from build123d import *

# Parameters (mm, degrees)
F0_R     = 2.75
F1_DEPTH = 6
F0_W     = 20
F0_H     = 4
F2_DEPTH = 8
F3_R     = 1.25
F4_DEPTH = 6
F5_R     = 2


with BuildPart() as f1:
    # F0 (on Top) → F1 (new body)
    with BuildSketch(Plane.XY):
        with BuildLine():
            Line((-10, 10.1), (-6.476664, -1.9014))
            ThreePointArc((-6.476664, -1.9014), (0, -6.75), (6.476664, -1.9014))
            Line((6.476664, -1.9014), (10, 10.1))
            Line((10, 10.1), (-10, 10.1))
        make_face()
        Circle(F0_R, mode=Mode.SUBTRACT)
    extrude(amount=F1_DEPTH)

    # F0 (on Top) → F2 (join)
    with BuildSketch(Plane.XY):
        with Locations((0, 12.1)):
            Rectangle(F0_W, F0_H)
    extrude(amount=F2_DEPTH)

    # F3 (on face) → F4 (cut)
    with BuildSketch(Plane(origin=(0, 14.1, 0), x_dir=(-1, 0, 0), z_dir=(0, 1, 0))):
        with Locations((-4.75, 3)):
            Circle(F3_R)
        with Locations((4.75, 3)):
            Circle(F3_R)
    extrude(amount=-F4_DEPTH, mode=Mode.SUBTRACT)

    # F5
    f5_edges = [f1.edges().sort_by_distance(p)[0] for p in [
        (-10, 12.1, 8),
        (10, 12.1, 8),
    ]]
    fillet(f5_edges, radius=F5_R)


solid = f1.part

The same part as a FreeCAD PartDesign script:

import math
import FreeCAD as App
import Part
import Sketcher


def edges_at(feature, points):
    """Names of the edges that pass closest to the given points."""
    edges = feature.Shape.Edges
    near = lambda p: min(range(len(edges)), key=lambda i: edges[i].distToShape(Part.Vertex(*p))[0])
    return sorted({f"Edge{near(p) + 1}" for p in points})


def add_polygon(sketch, points):
    """Adds a closed chain of lines whose ends are joined by coincident constraints."""
    first, n = sketch.GeometryCount, len(points)
    for a, b in zip(points, points[1:] + points[:1]):
        sketch.addGeometry(Part.LineSegment(App.Vector(*a, 0), App.Vector(*b, 0)), False)
    for i in range(n):
        sketch.addConstraint(Sketcher.Constraint("Coincident", first + i, 2, first + (i + 1) % n, 1))

doc = App.newDocument("Part")
params = doc.addObject("Spreadsheet::Sheet", "Params")
for row, (alias, value) in enumerate([
    ("sketch1_diameter", "5.5 mm"),
    ("sketch1_width", "20 mm"),
    ("sketch1_radius", "6.75 mm"),
    ("pad1_length", "6 mm"),
    ("sketch2_width", "20 mm"),
    ("sketch2_height", "4 mm"),
    ("pad2_length", "8 mm"),
    ("sketch3_diameter", "2.5 mm"),
    ("pocket1_length", "6 mm"),
    ("fillet_radius", "2 mm"),
], start=1):
    params.set(f"A{row}", alias)
    params.set(f"B{row}", "=" + value)
    params.setAlias(f"B{row}", alias)

body = doc.addObject("PartDesign::Body", "Body")

# Sketch on XY plane
sketch1 = doc.addObject("Sketcher::SketchObject", "Sketch")
body.addObject(sketch1)
sketch1.AttachmentSupport = (doc.XY_Plane, [""])
sketch1.MapMode = "FlatFace"
sketch1.addGeometry([
    Part.LineSegment(App.Vector(-10, 10.1, 0), App.Vector(-6.5, -1.9, 0)),  # 0
    Part.ArcOfCircle(Part.Circle(App.Vector(0, 0, 0), App.Vector(0, 0, 1), 6.7), math.radians(-164), math.radians(-16)),  # 1
    Part.LineSegment(App.Vector(6.5, -1.9, 0), App.Vector(10, 10.1, 0)),  # 2
    Part.LineSegment(App.Vector(10, 10.1, 0), App.Vector(-10, 10.1, 0)),  # 3
    Part.Circle(App.Vector(0, 0, 0), App.Vector(0, 0, 1), 2.8),  # 4
], False)
sketch1.addConstraint([
    Sketcher.Constraint("Tangent", 0, 2, 1, 1),
    Sketcher.Constraint("Tangent", 1, 2, 2, 1),
    Sketcher.Constraint("Coincident", 2, 2, 3, 1),
    Sketcher.Constraint("Coincident", 3, 2, 0, 1),
    Sketcher.Constraint("Horizontal", 3),
    Sketcher.Constraint("Coincident", 1, 3, -1, 1),
    Sketcher.Constraint("Coincident", 4, 3, -1, 1),
    Sketcher.Constraint("Horizontal", 0, 2, 1, 2),
    Sketcher.Constraint("Diameter", 4, 5.5),
    Sketcher.Constraint("DistanceX", 3, 2, 3, 1, 20.0),
    Sketcher.Constraint("Radius", 1, 6.75),
    Sketcher.Constraint("DistanceY", -1, 1, 2, 2, 10.1),
])
sketch1.setExpression("Constraints[8]", "Params.sketch1_diameter")
sketch1.setExpression("Constraints[9]", "Params.sketch1_width")
sketch1.setExpression("Constraints[10]", "Params.sketch1_radius")
pad1 = doc.addObject("PartDesign::Pad", "Pad")
body.addObject(pad1)
pad1.Profile = sketch1
pad1.setExpression("Length", "Params.pad1_length")

# Sketch on XY plane
sketch2 = doc.addObject("Sketcher::SketchObject", "Sketch001")
body.addObject(sketch2)
sketch2.AttachmentSupport = (doc.XY_Plane, [""])
sketch2.MapMode = "FlatFace"
add_polygon(sketch2, [(-10, 14.1), (-10, 10.1), (10, 10.1), (10, 14.1)])  # lines 0-3
sketch2.addConstraint([
    Sketcher.Constraint("Vertical", 0),
    Sketcher.Constraint("Horizontal", 1),
    Sketcher.Constraint("Vertical", 2),
    Sketcher.Constraint("Horizontal", 3),
    Sketcher.Constraint("DistanceX", 1, 1, 1, 2, 20.0),
    Sketcher.Constraint("DistanceY", 0, 2, 0, 1, 4.0),
    Sketcher.Constraint("DistanceX", 0, 2, -1, 1, 10.0),
    Sketcher.Constraint("DistanceY", -1, 1, 0, 2, 10.1),
])
sketch2.setExpression("Constraints[8]", "Params.sketch2_width")
sketch2.setExpression("Constraints[9]", "Params.sketch2_height")
pad2 = doc.addObject("PartDesign::Pad", "Pad001")
body.addObject(pad2)
pad2.Profile = sketch2
pad2.setExpression("Length", "Params.pad2_length")

# Sketch on XZ plane
sketch3 = doc.addObject("Sketcher::SketchObject", "Sketch002")
body.addObject(sketch3)
sketch3.AttachmentSupport = (doc.XZ_Plane, [""])
sketch3.MapMode = "FlatFace"
sketch3.AttachmentOffset = App.Placement(App.Vector(0, 0, -14.1), App.Rotation())
sketch3.addGeometry([
    Part.Circle(App.Vector(4.8, 3, 0), App.Vector(0, 0, 1), 1.2),
    Part.Circle(App.Vector(-4.8, 3, 0), App.Vector(0, 0, 1), 1.2),
], False)
sketch3.addConstraint([
    Sketcher.Constraint("Equal", 0, 1),
    Sketcher.Constraint("Symmetric", 0, 3, 1, 3, -2),
    Sketcher.Constraint("Diameter", 0, 2.5),
    Sketcher.Constraint("DistanceY", -1, 1, 0, 3, 3.0),
    Sketcher.Constraint("DistanceX", 1, 3, 0, 3, 9.5),
])
sketch3.setExpression("Constraints[2]", "Params.sketch3_diameter")
pocket1 = doc.addObject("PartDesign::Pocket", "Pocket")
body.addObject(pocket1)
pocket1.Profile = sketch3
pocket1.setExpression("Length", "Params.pocket1_length")
pocket1.Reversed = True
doc.recompute()

fillet = doc.addObject("PartDesign::Fillet", "Fillet")
body.addObject(fillet)
fillet.Base = (pocket1, edges_at(pocket1, [(-10, 12.1, 8), (10, 12.1, 8)]))
fillet.setExpression("Radius", "Params.fillet_radius")

doc.recompute()
